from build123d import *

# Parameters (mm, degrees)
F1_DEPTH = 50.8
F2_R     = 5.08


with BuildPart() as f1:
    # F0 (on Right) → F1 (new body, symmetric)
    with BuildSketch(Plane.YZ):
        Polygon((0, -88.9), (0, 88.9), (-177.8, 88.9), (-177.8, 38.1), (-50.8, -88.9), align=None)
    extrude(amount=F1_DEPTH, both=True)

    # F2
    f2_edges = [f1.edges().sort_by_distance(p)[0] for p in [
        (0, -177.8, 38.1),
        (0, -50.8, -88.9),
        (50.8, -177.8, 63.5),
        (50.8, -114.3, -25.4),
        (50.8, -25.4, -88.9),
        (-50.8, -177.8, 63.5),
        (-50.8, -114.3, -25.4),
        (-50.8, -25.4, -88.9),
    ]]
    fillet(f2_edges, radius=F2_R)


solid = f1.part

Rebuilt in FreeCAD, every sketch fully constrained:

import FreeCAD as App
import Part
import Sketcher

V = App.Vector
Q = App.Units.Quantity


def edges_at(feature, points):
    """Names of the edges that pass closest to the given points."""
    edges = feature.Shape.Edges
    near = lambda p: min(range(len(edges)), key=lambda i: edges[i].distToShape(Part.Vertex(*p))[0])
    return sorted({f"Edge{near(p) + 1}" for p in points})

doc = App.newDocument("Part")
body = doc.addObject("PartDesign::Body", "Body")

# Sketch on YZ plane
sketch1 = body.newObject("Sketcher::SketchObject", "Sketch")
sketch1.AttachmentSupport = (doc.getObject("YZ_Plane"), [""])
sketch1.MapMode = "FlatFace"
sketch1.addGeometry([
    Part.LineSegment(V(0, -88.9, 0), V(0, 88.9, 0)),  # 0
    Part.LineSegment(V(0, 88.9, 0), V(-177.8, 88.9, 0)),  # 1
    Part.LineSegment(V(-177.8, 88.9, 0), V(-177.8, 38.1, 0)),  # 2
    Part.LineSegment(V(-177.8, 38.1, 0), V(-50.8, -88.9, 0)),  # 3
    Part.LineSegment(V(-50.8, -88.9, 0), V(0, -88.9, 0)),  # 4
], False)
sketch1.addConstraint([
    Sketcher.Constraint("Coincident", 0, 2, 1, 1),
    Sketcher.Constraint("Coincident", 1, 2, 2, 1),
    Sketcher.Constraint("Coincident", 2, 2, 3, 1),
    Sketcher.Constraint("Coincident", 3, 2, 4, 1),
    Sketcher.Constraint("Coincident", 4, 2, 0, 1),
    Sketcher.Constraint("Vertical", 0),
    Sketcher.Constraint("Horizontal", 1),
    Sketcher.Constraint("Vertical", 2),
    Sketcher.Constraint("Horizontal", 4),
    Sketcher.Constraint("Symmetric", 0, 2, 4, 2, -1, 1),
    Sketcher.Constraint("Equal", 1, 0),
    Sketcher.Constraint("Equal", 4, 2),
    Sketcher.Constraint("DistanceX", 1, 2, 1, 1, Q("7 in")),
    Sketcher.Constraint("DistanceX", 4, 1, 4, 2, Q("2 in")),
])
pad1 = body.newObject("PartDesign::Pad", "Pad")
pad1.Profile = sketch1
pad1.Length = Q("4 in")
pad1.Midplane = True
doc.recompute()

fillet = body.newObject("PartDesign::Fillet", "Fillet")
fillet.Base = (pad1, edges_at(pad1, [
    (0, -177.8, 38.1),
    (0, -50.8, -88.9),
    (50.8, -177.8, 63.5),
    (50.8, -114.3, -25.4),
    (50.8, -25.4, -88.9),
    (-50.8, -177.8, 63.5),
    (-50.8, -114.3, -25.4),
    (-50.8, -25.4, -88.9),
]))
fillet.Radius = Q("0.2 in")

doc.recompute()
